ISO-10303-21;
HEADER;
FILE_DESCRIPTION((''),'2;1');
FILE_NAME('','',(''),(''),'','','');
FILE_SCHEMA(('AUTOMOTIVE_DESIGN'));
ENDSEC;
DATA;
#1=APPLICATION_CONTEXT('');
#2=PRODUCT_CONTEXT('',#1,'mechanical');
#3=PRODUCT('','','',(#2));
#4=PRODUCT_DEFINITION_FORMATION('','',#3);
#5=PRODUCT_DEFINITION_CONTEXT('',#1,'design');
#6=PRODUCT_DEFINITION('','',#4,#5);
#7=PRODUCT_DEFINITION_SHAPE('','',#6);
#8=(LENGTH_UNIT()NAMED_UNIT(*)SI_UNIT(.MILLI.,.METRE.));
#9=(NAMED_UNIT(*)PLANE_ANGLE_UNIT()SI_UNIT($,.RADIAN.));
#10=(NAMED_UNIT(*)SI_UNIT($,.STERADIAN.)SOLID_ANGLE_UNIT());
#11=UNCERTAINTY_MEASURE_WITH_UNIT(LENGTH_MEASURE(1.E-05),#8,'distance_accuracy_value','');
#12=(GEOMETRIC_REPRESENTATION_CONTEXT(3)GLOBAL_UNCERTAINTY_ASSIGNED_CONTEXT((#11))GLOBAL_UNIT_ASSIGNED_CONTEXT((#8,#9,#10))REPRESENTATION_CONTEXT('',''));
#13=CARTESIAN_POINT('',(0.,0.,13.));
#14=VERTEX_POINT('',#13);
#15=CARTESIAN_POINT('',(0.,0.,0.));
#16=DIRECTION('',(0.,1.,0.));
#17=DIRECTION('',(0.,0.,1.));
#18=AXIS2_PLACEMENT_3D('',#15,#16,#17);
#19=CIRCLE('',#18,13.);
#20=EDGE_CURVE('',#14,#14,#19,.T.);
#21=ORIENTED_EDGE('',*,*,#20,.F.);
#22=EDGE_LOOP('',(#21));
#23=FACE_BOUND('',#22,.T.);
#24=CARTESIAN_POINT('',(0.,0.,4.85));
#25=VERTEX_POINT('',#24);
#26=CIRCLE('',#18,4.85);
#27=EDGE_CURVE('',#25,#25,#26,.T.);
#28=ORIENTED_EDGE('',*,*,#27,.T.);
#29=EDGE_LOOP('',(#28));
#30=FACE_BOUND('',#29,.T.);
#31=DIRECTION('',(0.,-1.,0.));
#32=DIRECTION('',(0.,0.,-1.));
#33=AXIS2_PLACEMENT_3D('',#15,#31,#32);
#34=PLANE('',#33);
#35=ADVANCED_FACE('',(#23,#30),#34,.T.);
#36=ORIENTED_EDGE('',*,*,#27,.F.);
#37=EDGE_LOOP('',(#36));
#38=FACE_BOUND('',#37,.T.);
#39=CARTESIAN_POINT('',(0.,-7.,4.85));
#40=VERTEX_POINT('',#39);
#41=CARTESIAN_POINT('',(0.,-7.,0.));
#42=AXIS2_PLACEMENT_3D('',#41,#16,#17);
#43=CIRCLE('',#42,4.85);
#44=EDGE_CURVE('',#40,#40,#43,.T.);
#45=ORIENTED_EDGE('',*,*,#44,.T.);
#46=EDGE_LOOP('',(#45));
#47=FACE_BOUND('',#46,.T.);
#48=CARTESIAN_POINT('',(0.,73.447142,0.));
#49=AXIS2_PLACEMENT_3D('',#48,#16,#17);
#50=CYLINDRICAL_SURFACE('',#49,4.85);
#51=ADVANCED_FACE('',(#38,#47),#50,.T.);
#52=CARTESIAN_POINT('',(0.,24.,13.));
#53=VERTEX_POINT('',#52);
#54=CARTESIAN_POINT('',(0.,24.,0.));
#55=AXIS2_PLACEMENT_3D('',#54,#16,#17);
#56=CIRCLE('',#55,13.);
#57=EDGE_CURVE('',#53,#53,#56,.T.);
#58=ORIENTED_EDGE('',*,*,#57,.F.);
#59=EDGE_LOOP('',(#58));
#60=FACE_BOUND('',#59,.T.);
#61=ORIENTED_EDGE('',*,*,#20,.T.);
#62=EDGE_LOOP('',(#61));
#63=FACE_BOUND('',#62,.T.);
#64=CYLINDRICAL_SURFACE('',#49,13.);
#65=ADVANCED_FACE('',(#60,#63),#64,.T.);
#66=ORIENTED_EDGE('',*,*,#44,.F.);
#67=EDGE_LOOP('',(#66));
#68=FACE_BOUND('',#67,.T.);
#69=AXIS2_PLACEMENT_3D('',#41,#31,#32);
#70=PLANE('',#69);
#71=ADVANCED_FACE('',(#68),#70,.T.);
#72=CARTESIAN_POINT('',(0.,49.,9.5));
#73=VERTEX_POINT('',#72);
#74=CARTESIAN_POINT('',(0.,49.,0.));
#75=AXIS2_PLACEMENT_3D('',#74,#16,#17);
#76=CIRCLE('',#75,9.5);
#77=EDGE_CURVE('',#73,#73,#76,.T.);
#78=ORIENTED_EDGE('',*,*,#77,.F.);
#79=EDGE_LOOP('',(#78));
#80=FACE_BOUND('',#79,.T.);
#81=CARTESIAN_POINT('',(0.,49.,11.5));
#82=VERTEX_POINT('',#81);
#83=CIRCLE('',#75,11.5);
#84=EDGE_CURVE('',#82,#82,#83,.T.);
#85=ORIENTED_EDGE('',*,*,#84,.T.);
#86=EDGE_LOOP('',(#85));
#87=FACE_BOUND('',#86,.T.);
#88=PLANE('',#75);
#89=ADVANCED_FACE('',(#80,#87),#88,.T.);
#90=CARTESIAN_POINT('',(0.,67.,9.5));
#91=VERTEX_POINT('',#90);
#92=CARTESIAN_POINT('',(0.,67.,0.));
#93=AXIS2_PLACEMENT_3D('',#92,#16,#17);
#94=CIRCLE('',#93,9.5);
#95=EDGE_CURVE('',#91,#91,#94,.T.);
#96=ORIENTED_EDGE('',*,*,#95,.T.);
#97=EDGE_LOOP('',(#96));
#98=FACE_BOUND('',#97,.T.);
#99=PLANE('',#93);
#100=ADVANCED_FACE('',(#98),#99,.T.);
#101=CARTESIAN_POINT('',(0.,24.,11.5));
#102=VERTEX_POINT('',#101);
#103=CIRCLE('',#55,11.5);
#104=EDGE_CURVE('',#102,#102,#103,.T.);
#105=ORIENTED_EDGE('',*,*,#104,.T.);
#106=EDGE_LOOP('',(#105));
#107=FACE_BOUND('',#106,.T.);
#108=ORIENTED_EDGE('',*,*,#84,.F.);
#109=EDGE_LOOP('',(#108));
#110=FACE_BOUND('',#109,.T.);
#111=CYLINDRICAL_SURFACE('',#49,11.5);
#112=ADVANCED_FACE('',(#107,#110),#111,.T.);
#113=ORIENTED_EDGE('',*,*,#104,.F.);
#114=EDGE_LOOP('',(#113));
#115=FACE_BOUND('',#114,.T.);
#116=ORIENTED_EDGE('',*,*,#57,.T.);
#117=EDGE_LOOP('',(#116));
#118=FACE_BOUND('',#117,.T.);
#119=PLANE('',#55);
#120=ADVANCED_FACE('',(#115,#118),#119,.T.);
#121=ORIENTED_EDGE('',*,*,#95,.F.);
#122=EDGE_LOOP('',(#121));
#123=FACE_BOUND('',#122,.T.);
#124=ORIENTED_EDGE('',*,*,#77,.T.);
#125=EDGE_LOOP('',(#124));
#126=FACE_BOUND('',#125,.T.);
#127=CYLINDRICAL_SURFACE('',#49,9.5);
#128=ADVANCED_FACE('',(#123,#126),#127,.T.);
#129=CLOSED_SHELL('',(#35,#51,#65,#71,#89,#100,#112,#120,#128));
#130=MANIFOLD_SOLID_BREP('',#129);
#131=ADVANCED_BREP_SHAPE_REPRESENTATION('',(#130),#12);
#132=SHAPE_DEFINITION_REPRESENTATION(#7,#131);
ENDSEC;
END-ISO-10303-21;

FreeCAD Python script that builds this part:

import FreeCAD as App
import Part
import Sketcher
Q = App.Units.Quantity

doc = App.newDocument("Part")
body = doc.addObject("PartDesign::Body", "Body")

# Sketch on XY plane
sketch1 = doc.addObject("Sketcher::SketchObject", "Sketch")
body.addObject(sketch1)
sketch1.AttachmentSupport = (doc.XY_Plane, [""])
sketch1.MapMode = "FlatFace"
sketch1.addGeometry([
    Part.LineSegment(App.Vector(0, 67, 0), App.Vector(0, -7, 0)),  # 0
    Part.LineSegment(App.Vector(0, -7, 0), App.Vector(4.8, -7, 0)),  # 1
    Part.LineSegment(App.Vector(4.8, -7, 0), App.Vector(4.8, 0, 0)),  # 2
    Part.LineSegment(App.Vector(4.8, 0, 0), App.Vector(13, 0, 0)),  # 3
    Part.LineSegment(App.Vector(13, 0, 0), App.Vector(13, 24, 0)),  # 4
    Part.LineSegment(App.Vector(13, 24, 0), App.Vector(11.5, 24, 0)),  # 5
    Part.LineSegment(App.Vector(11.5, 24, 0), App.Vector(11.5, 49, 0)),  # 6
    Part.LineSegment(App.Vector(11.5, 49, 0), App.Vector(9.5, 49, 0)),  # 7
    Part.LineSegment(App.Vector(9.5, 49, 0), App.Vector(9.5, 67, 0)),  # 8
    Part.LineSegment(App.Vector(9.5, 67, 0), App.Vector(0, 67, 0)),  # 9
], False)
sketch1.addConstraint([
    Sketcher.Constraint("Coincident", 0, 2, 1, 1),
    Sketcher.Constraint("Coincident", 1, 2, 2, 1),
    Sketcher.Constraint("Coincident", 2, 2, 3, 1),
    Sketcher.Constraint("Coincident", 3, 2, 4, 1),
    Sketcher.Constraint("Coincident", 4, 2, 5, 1),
    Sketcher.Constraint("Coincident", 5, 2, 6, 1),
    Sketcher.Constraint("Coincident", 6, 2, 7, 1),
    Sketcher.Constraint("Coincident", 7, 2, 8, 1),
    Sketcher.Constraint("Coincident", 8, 2, 9, 1),
    Sketcher.Constraint("Coincident", 9, 2, 0, 1),
    Sketcher.Constraint("Vertical", 0),
    Sketcher.Constraint("Horizontal", 1),
    Sketcher.Constraint("Vertical", 2),
    Sketcher.Constraint("Horizontal", 3),
    Sketcher.Constraint("Vertical", 4),
    Sketcher.Constraint("Horizontal", 5),
    Sketcher.Constraint("Vertical", 6),
    Sketcher.Constraint("Horizontal", 7),
    Sketcher.Constraint("Vertical", 8),
    Sketcher.Constraint("Horizontal", 9),
    Sketcher.Constraint("PointOnObject", 0, 2, -2),
    Sketcher.Constraint("PointOnObject", 2, 2, -1),
    Sketcher.Constraint("DistanceX", 7, 2, 7, 1, Q("2 mm")),
    Sketcher.Constraint("DistanceY", 0, 2, 0, 1, Q("74 mm")),
    Sketcher.Constraint("DistanceY", 2, 1, 2, 2, Q("7 mm")),
    Sketcher.Constraint("DistanceY", 4, 1, 4, 2, Q("24 mm")),
    Sketcher.Constraint("DistanceY", 6, 1, 6, 2, Q("25 mm")),
    Sketcher.Constraint("DistanceX", 5, 2, 5, 1, Q("1.5 mm")),
    Sketcher.Constraint("DistanceX", 9, 2, 9, 1, Q("9.5 mm")),
    Sketcher.Constraint("DistanceX", 1, 1, 1, 2, Q("4.85 mm")),
])
revolution = doc.addObject("PartDesign::Revolution", "Revolution")
body.addObject(revolution)
revolution.Profile = sketch1
revolution.ReferenceAxis = (sketch1, ["V_Axis"])
revolution.Angle = 360

doc.recompute()
